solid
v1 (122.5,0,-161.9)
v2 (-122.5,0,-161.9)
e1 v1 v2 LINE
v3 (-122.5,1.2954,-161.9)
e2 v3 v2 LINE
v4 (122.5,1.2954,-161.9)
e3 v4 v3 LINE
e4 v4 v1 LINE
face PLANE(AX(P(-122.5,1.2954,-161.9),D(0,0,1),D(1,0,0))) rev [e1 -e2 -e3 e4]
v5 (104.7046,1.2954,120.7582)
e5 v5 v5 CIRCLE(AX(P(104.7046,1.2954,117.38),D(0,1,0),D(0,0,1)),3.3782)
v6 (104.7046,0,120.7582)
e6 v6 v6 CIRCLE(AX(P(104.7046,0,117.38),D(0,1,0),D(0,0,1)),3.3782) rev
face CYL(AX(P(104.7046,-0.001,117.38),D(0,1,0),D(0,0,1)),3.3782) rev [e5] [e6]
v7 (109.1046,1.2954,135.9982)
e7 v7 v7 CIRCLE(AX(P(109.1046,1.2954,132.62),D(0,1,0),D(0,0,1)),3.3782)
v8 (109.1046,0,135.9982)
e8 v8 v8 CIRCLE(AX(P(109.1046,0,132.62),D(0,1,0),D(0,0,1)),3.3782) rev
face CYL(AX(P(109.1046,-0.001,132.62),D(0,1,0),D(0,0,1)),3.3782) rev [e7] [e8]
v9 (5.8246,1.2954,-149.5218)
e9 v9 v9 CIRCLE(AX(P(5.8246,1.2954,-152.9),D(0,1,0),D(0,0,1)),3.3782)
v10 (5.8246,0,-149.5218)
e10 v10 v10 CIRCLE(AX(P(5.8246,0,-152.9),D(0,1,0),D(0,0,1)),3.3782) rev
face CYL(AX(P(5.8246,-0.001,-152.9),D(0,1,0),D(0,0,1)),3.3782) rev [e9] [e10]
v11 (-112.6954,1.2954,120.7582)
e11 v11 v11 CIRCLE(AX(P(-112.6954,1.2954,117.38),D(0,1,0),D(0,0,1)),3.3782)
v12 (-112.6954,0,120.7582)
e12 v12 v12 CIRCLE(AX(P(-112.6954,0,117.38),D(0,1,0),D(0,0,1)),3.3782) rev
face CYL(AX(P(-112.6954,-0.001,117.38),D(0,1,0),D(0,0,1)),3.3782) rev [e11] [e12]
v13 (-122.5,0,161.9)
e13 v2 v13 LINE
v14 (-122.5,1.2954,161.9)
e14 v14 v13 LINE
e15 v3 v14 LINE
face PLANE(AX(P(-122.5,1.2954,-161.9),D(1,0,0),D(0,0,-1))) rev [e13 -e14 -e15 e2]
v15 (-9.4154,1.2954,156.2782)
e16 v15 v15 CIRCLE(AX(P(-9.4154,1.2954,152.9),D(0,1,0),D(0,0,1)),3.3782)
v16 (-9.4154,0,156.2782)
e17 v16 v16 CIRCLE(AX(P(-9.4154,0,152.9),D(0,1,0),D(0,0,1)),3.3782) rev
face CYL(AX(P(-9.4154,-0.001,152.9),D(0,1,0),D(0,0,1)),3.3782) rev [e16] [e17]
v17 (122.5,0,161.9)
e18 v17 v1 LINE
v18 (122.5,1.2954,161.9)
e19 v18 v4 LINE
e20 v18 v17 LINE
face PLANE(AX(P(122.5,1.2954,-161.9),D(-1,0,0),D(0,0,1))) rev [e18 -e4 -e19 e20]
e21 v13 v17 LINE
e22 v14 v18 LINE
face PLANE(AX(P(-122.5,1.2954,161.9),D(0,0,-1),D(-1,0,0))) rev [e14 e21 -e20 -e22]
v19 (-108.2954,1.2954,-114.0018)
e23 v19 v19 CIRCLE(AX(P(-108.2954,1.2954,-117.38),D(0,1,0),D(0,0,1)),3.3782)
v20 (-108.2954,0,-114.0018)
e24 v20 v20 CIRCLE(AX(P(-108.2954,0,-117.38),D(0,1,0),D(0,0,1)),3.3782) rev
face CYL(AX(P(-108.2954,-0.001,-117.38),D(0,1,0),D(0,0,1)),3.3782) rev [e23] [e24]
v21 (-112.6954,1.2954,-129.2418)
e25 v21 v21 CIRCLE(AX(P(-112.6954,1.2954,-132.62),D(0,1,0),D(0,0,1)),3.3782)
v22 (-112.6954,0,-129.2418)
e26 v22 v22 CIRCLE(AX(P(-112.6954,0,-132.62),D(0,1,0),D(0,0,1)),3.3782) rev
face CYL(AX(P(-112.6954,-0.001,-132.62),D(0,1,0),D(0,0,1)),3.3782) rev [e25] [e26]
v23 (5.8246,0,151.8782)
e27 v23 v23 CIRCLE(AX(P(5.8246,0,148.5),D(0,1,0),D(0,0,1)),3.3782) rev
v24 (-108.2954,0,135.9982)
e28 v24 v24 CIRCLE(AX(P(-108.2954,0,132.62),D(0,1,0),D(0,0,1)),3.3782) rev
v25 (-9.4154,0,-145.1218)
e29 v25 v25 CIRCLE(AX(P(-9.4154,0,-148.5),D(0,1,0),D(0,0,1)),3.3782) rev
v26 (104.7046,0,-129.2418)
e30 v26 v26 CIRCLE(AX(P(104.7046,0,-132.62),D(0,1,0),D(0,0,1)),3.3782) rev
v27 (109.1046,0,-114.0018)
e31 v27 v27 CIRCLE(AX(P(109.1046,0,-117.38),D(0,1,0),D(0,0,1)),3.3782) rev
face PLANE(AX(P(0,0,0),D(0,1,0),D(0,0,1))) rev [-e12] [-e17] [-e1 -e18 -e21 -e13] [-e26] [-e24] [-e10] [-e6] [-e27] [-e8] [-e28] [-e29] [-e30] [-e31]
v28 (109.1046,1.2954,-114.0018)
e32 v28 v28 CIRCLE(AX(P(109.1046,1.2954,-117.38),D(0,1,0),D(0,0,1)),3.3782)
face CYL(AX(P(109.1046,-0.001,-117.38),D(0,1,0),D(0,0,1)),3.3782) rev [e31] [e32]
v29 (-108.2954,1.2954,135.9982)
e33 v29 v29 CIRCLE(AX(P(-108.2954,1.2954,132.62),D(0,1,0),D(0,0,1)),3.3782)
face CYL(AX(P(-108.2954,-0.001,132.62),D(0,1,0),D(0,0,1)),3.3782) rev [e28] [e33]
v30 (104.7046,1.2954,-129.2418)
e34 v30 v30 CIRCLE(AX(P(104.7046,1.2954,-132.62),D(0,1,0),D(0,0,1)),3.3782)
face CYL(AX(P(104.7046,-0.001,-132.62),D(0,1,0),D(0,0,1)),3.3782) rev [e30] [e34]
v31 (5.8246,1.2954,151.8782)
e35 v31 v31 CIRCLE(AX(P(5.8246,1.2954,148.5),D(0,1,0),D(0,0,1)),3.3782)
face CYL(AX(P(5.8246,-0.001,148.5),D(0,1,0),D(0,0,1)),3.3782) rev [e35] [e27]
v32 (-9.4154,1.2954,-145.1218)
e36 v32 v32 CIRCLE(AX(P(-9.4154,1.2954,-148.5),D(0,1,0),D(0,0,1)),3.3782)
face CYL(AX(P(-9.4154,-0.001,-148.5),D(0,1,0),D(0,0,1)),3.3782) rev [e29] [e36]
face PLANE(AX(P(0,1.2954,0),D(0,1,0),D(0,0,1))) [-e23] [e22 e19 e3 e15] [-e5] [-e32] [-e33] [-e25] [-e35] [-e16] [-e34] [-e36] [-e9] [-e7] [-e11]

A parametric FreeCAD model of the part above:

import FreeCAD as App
import Part
import Sketcher
from FreeCAD import Vector
Q = App.Units.Quantity


def add_polygon(sketch, points):
    """Adds a closed chain of lines whose ends are joined by coincident constraints."""
    first, n = sketch.GeometryCount, len(points)
    for a, b in zip(points, points[1:] + points[:1]):
        sketch.addGeometry(Part.LineSegment(App.Vector(*a, 0), App.Vector(*b, 0)), False)
    for i in range(n):
        sketch.addConstraint(Sketcher.Constraint("Coincident", first + i, 2, first + (i + 1) % n, 1))

doc = App.newDocument("Part")
body = doc.addObject("PartDesign::Body", "Body")

# Sketch on XZ plane
sketch1 = body.newObject("Sketcher::SketchObject", "Sketch")
sketch1.AttachmentSupport = (doc.getObject("XZ_Plane"), [""])
sketch1.MapMode = "FlatFace"
add_polygon(sketch1, [(-122, -162), (-122, 162), (122, 162), (122, -162)])  # lines 0-3
sketch1.addConstraint([
    Sketcher.Constraint("Vertical", 0),
    Sketcher.Constraint("Horizontal", 1),
    Sketcher.Constraint("Vertical", 2),
    Sketcher.Constraint("Horizontal", 3),
    Sketcher.Constraint("Symmetric", 0, 2, 2, 2, -1, 1),
    Sketcher.Constraint("DistanceX", 1, 1, 1, 2, Q("245 mm")),
    Sketcher.Constraint("DistanceY", 0, 1, 0, 2, Q("323.8 mm")),
])
pad1 = body.newObject("PartDesign::Pad", "Pad")
pad1.Profile = sketch1
pad1.Length = 1.2954
pad1.Reversed = True

# Sketch on XZ plane
sketch2 = body.newObject("Sketcher::SketchObject", "Sketch001")
sketch2.AttachmentSupport = (doc.getObject("XZ_Plane"), [""])
sketch2.MapMode = "FlatFace"
sketch2.AttachmentOffset = App.Placement(Vector(0, 0, -1.2954), App.Rotation())
sketch2.addGeometry(Part.Circle(Vector(109.1, 132.6, 0), Vector(0, 0, 1), 3.4), False)
sketch2.addConstraint([
    Sketcher.Constraint("Diameter", 0, Q("6.7564 mm")),
    Sketcher.Constraint("DistanceY", -1, 1, 0, 3, Q("132.62 mm")),
    Sketcher.Constraint("DistanceX", -1, 1, 0, 3, Q("109.1046 mm")),
])
pocket1 = body.newObject("PartDesign::Pocket", "Pocket")
pocket1.Profile = sketch2
pocket1.Type = "UpToFirst"
pocket1.Reversed = True

# Sketch on XZ plane
sketch3 = body.newObject("Sketcher::SketchObject", "Sketch002")
sketch3.AttachmentSupport = (doc.getObject("XZ_Plane"), [""])
sketch3.MapMode = "FlatFace"
sketch3.AttachmentOffset = App.Placement(Vector(0, 0, -1.2954), App.Rotation())
sketch3.addGeometry(Part.Circle(Vector(104.7, 117.4, 0), Vector(0, 0, 1), 3.4), False)
sketch3.addConstraint([
    Sketcher.Constraint("Diameter", 0, Q("6.7564 mm")),
    Sketcher.Constraint("DistanceY", -1, 1, 0, 3, Q("117.38 mm")),
    Sketcher.Constraint("DistanceX", -1, 1, 0, 3, Q("104.7046 mm")),
])
pocket2 = body.newObject("PartDesign::Pocket", "Pocket001")
pocket2.Profile = sketch3
pocket2.Type = "UpToFirst"
pocket2.Reversed = True

# Sketch on XZ plane
sketch4 = body.newObject("Sketcher::SketchObject", "Sketch003")
sketch4.AttachmentSupport = (doc.getObject("XZ_Plane"), [""])
sketch4.MapMode = "FlatFace"
sketch4.AttachmentOffset = App.Placement(Vector(0, 0, -1.2954), App.Rotation())
sketch4.addGeometry(Part.Circle(Vector(5.8, 148.5, 0), Vector(0, 0, 1), 3.4), False)
sketch4.addConstraint([
    Sketcher.Constraint("Diameter", 0, Q("6.7564 mm")),
    Sketcher.Constraint("DistanceY", -1, 1, 0, 3, Q("148.5 mm")),
    Sketcher.Constraint("DistanceX", -1, 1, 0, 3, Q("5.8246 mm")),
])
pocket3 = body.newObject("PartDesign::Pocket", "Pocket002")
pocket3.Profile = sketch4
pocket3.Type = "UpToFirst"
pocket3.Reversed = True

# Sketch on XZ plane
sketch5 = body.newObject("Sketcher::SketchObject", "Sketch004")
sketch5.AttachmentSupport = (doc.getObject("XZ_Plane"), [""])
sketch5.MapMode = "FlatFace"
sketch5.AttachmentOffset = App.Placement(Vector(0, 0, -1.2954), App.Rotation())
sketch5.addGeometry(Part.Circle(Vector(-9.4, 152.9, 0), Vector(0, 0, 1), 3.4), False)
sketch5.addConstraint([
    Sketcher.Constraint("Diameter", 0, Q("6.7564 mm")),
    Sketcher.Constraint("DistanceY", -1, 1, 0, 3, Q("152.9 mm")),
    Sketcher.Constraint("DistanceX", 0, 3, -1, 1, Q("9.4154 mm")),
])
pocket4 = body.newObject("PartDesign::Pocket", "Pocket003")
pocket4.Profile = sketch5
pocket4.Type = "UpToFirst"
pocket4.Reversed = True

# Sketch on XZ plane
sketch6 = body.newObject("Sketcher::SketchObject", "Sketch005")
sketch6.AttachmentSupport = (doc.getObject("XZ_Plane"), [""])
sketch6.MapMode = "FlatFace"
sketch6.AttachmentOffset = App.Placement(Vector(0, 0, -1.2954), App.Rotation())
sketch6.addGeometry(Part.Circle(Vector(109.1, -117.4, 0), Vector(0, 0, 1), 3.4), False)
sketch6.addConstraint([
    Sketcher.Constraint("Diameter", 0, Q("6.7564 mm")),
    Sketcher.Constraint("DistanceY", 0, 3, -1, 1, Q("117.38 mm")),
    Sketcher.Constraint("DistanceX", -1, 1, 0, 3, Q("109.1046 mm")),
])
pocket5 = body.newObject("PartDesign::Pocket", "Pocket004")
pocket5.Profile = sketch6
pocket5.Type = "UpToFirst"
pocket5.Reversed = True

# Sketch on XZ plane
sketch7 = body.newObject("Sketcher::SketchObject", "Sketch006")
sketch7.AttachmentSupport = (doc.getObject("XZ_Plane"), [""])
sketch7.MapMode = "FlatFace"
sketch7.AttachmentOffset = App.Placement(Vector(0, 0, -1.2954), App.Rotation())
sketch7.addGeometry(Part.Circle(Vector(104.7, -132.6, 0), Vector(0, 0, 1), 3.4), False)
sketch7.addConstraint([
    Sketcher.Constraint("Diameter", 0, Q("6.7564 mm")),
    Sketcher.Constraint("DistanceY", 0, 3, -1, 1, Q("132.62 mm")),
    Sketcher.Constraint("DistanceX", -1, 1, 0, 3, Q("104.7046 mm")),
])
pocket6 = body.newObject("PartDesign::Pocket", "Pocket005")
pocket6.Profile = sketch7
pocket6.Type = "UpToFirst"
pocket6.Reversed = True

# Sketch on XZ plane
sketch8 = body.newObject("Sketcher::SketchObject", "Sketch007")
sketch8.AttachmentSupport = (doc.getObject("XZ_Plane"), [""])
sketch8.MapMode = "FlatFace"
sketch8.AttachmentOffset = App.Placement(Vector(0, 0, -1.2954), App.Rotation())
sketch8.addGeometry(Part.Circle(Vector(5.8, -152.9, 0), Vector(0, 0, 1), 3.4), False)
sketch8.addConstraint([
    Sketcher.Constraint("Diameter", 0, Q("6.7564 mm")),
    Sketcher.Constraint("DistanceY", 0, 3, -1, 1, Q("152.9 mm")),
    Sketcher.Constraint("DistanceX", -1, 1, 0, 3, Q("5.8246 mm")),
])
pocket7 = body.newObject("PartDesign::Pocket", "Pocket006")
pocket7.Profile = sketch8
pocket7.Type = "UpToFirst"
pocket7.Reversed = True

# Sketch on XZ plane
sketch9 = body.newObject("Sketcher::SketchObject", "Sketch008")
sketch9.AttachmentSupport = (doc.getObject("XZ_Plane"), [""])
sketch9.MapMode = "FlatFace"
sketch9.AttachmentOffset = App.Placement(Vector(0, 0, -1.2954), App.Rotation())
sketch9.addGeometry(Part.Circle(Vector(-9.4, -148.5, 0), Vector(0, 0, 1), 3.4), False)
sketch9.addConstraint([
    Sketcher.Constraint("Diameter", 0, Q("6.7564 mm")),
    Sketcher.Constraint("DistanceY", 0, 3, -1, 1, Q("148.5 mm")),
    Sketcher.Constraint("DistanceX", 0, 3, -1, 1, Q("9.4154 mm")),
])
pocket8 = body.newObject("PartDesign::Pocket", "Pocket007")
pocket8.Profile = sketch9
pocket8.Type = "UpToFirst"
pocket8.Reversed = True

# Sketch on XZ plane
sketch10 = body.newObject("Sketcher::SketchObject", "Sketch009")
sketch10.AttachmentSupport = (doc.getObject("XZ_Plane"), [""])
sketch10.MapMode = "FlatFace"
sketch10.AttachmentOffset = App.Placement(Vector(0, 0, -1.2954), App.Rotation())
sketch10.addGeometry(Part.Circle(Vector(-108.3, -117.4, 0), Vector(0, 0, 1), 3.4), False)
sketch10.addConstraint([
    Sketcher.Constraint("Diameter", 0, Q("6.7564 mm")),
    Sketcher.Constraint("DistanceY", 0, 3, -1, 1, Q("117.38 mm")),
    Sketcher.Constraint("DistanceX", 0, 3, -1, 1, Q("108.2954 mm")),
])
pocket9 = body.newObject("PartDesign::Pocket", "Pocket008")
pocket9.Profile = sketch10
pocket9.Type = "UpToFirst"
pocket9.Reversed = True

# Sketch on XZ plane
sketch11 = body.newObject("Sketcher::SketchObject", "Sketch010")
sketch11.AttachmentSupport = (doc.getObject("XZ_Plane"), [""])
sketch11.MapMode = "FlatFace"
sketch11.AttachmentOffset = App.Placement(Vector(0, 0, -1.2954), App.Rotation())
sketch11.addGeometry(Part.Circle(Vector(-112.7, -132.6, 0), Vector(0, 0, 1), 3.4), False)
sketch11.addConstraint([
    Sketcher.Constraint("Diameter", 0, Q("6.7564 mm")),
    Sketcher.Constraint("DistanceY", 0, 3, -1, 1, Q("132.62 mm")),
    Sketcher.Constraint("DistanceX", 0, 3, -1, 1, Q("112.6954 mm")),
])
pocket10 = body.newObject("PartDesign::Pocket", "Pocket009")
pocket10.Profile = sketch11
pocket10.Type = "UpToFirst"
pocket10.Reversed = True

# Sketch on XZ plane
sketch12 = body.newObject("Sketcher::SketchObject", "Sketch011")
sketch12.AttachmentSupport = (doc.getObject("XZ_Plane"), [""])
sketch12.MapMode = "FlatFace"
sketch12.AttachmentOffset = App.Placement(Vector(0, 0, -1.2954), App.Rotation())
sketch12.addGeometry(Part.Circle(Vector(-108.3, 132.6, 0), Vector(0, 0, 1), 3.4), False)
sketch12.addConstraint([
    Sketcher.Constraint("Diameter", 0, Q("6.7564 mm")),
    Sketcher.Constraint("DistanceY", -1, 1, 0, 3, Q("132.62 mm")),
    Sketcher.Constraint("DistanceX", 0, 3, -1, 1, Q("108.2954 mm")),
])
pocket11 = body.newObject("PartDesign::Pocket", "Pocket010")
pocket11.Profile = sketch12
pocket11.Type = "UpToFirst"
pocket11.Reversed = True

# Sketch on XZ plane
sketch13 = body.newObject("Sketcher::SketchObject", "Sketch012")
sketch13.AttachmentSupport = (doc.getObject("XZ_Plane"), [""])
sketch13.MapMode = "FlatFace"
sketch13.AttachmentOffset = App.Placement(Vector(0, 0, -1.2954), App.Rotation())
sketch13.addGeometry(Part.Circle(Vector(-112.7, 117.4, 0), Vector(0, 0, 1), 3.4), False)
sketch13.addConstraint([
    Sketcher.Constraint("Diameter", 0, Q("6.7564 mm")),
    Sketcher.Constraint("DistanceY", -1, 1, 0, 3, Q("117.38 mm")),
    Sketcher.Constraint("DistanceX", 0, 3, -1, 1, Q("112.6954 mm")),
])
pocket12 = body.newObject("PartDesign::Pocket", "Pocket011")
pocket12.Profile = sketch13
pocket12.Type = "UpToFirst"
pocket12.Reversed = True

doc.recompute()
